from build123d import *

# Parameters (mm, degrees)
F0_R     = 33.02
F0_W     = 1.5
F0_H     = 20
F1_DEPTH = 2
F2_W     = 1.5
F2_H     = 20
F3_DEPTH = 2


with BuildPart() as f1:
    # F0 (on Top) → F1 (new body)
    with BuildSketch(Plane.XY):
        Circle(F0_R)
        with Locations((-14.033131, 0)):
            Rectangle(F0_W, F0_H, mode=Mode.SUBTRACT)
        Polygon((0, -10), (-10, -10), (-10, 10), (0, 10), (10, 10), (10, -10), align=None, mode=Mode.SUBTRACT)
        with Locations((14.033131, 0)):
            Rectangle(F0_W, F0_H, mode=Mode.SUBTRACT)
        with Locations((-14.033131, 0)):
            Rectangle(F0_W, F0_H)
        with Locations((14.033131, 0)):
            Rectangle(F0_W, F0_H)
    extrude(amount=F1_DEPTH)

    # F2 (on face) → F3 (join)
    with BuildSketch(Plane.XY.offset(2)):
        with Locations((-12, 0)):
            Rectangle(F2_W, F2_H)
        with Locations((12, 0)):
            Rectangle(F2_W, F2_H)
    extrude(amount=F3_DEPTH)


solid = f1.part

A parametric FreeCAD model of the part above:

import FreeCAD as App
import Part
import Sketcher

V = App.Vector

doc = App.newDocument("Part")
body = doc.addObject("PartDesign::Body", "Body")

# Sketch on XY plane
sketch1 = doc.addObject("Sketcher::SketchObject", "Sketch")
body.addObject(sketch1)
sketch1.AttachmentSupport = (doc.XY_Plane, [""])
sketch1.MapMode = "FlatFace"
sketch1.addGeometry(Part.Circle(V(0, 0, 0), V(0, 0, 1), 33.02), False)
sketch1.addGeometry(Part.LineSegment(V(10, -10, 0), V(-10, -10, 0)), False)
sketch1.addGeometry(Part.LineSegment(V(-10, -10, 0), V(-10, 10, 0)), False)
sketch1.addGeometry(Part.LineSegment(V(-10, 10, 0), V(10, 10, 0)), False)
sketch1.addGeometry(Part.LineSegment(V(10, 10, 0), V(10, -10, 0)), False)
sketch1.addConstraint(Sketcher.Constraint("Coincident", 1, 2, 2, 1))
sketch1.addConstraint(Sketcher.Constraint("Coincident", 2, 2, 3, 1))
sketch1.addConstraint(Sketcher.Constraint("Coincident", 3, 2, 4, 1))
sketch1.addConstraint(Sketcher.Constraint("Coincident", 4, 2, 1, 1))
sketch1.addConstraint(Sketcher.Constraint("Horizontal", 1))
sketch1.addConstraint(Sketcher.Constraint("Vertical", 2))
sketch1.addConstraint(Sketcher.Constraint("Horizontal", 3))
sketch1.addConstraint(Sketcher.Constraint("Vertical", 4))
sketch1.addConstraint(Sketcher.Constraint("Coincident", 0, 3, -1, 1))
sketch1.addConstraint(Sketcher.Constraint("Symmetric", 1, 2, 3, 2, -1, 1))
sketch1.addConstraint(Sketcher.Constraint("Equal", 3, 2))
sketch1.addConstraint(Sketcher.Constraint("Diameter", 0, 66.04))
sketch1.addConstraint(Sketcher.Constraint("DistanceX", 1, 2, 1, 1, 20.0))
pad1 = doc.addObject("PartDesign::Pad", "Pad")
body.addObject(pad1)
pad1.Profile = sketch1
pad1.Length = 2

# Sketch on XY plane
sketch2 = doc.addObject("Sketcher::SketchObject", "Sketch001")
body.addObject(sketch2)
sketch2.AttachmentSupport = (doc.XY_Plane, [""])
sketch2.MapMode = "FlatFace"
sketch2.AttachmentOffset = App.Placement(V(0, 0, 2), App.Rotation())
sketch2.addGeometry(Part.LineSegment(V(-12.75, 10, 0), V(-12.75, -10, 0)), False)
sketch2.addGeometry(Part.LineSegment(V(-12.75, -10, 0), V(-11.25, -10, 0)), False)
sketch2.addGeometry(Part.LineSegment(V(-11.25, -10, 0), V(-11.25, 10, 0)), False)
sketch2.addGeometry(Part.LineSegment(V(-11.25, 10, 0), V(-12.75, 10, 0)), False)
sketch2.addGeometry(Part.LineSegment(V(11.25, 10, 0), V(11.25, -10, 0)), False)
sketch2.addGeometry(Part.LineSegment(V(11.25, -10, 0), V(12.75, -10, 0)), False)
sketch2.addGeometry(Part.LineSegment(V(12.75, -10, 0), V(12.75, 10, 0)), False)
sketch2.addGeometry(Part.LineSegment(V(12.75, 10, 0), V(11.25, 10, 0)), False)
sketch2.addConstraint(Sketcher.Constraint("Coincident", 0, 2, 1, 1))
sketch2.addConstraint(Sketcher.Constraint("Coincident", 1, 2, 2, 1))
sketch2.addConstraint(Sketcher.Constraint("Coincident", 2, 2, 3, 1))
sketch2.addConstraint(Sketcher.Constraint("Coincident", 3, 2, 0, 1))
sketch2.addConstraint(Sketcher.Constraint("Coincident", 4, 2, 5, 1))
sketch2.addConstraint(Sketcher.Constraint("Coincident", 5, 2, 6, 1))
sketch2.addConstraint(Sketcher.Constraint("Coincident", 6, 2, 7, 1))
sketch2.addConstraint(Sketcher.Constraint("Coincident", 7, 2, 4, 1))
sketch2.addConstraint(Sketcher.Constraint("Vertical", 0))
sketch2.addConstraint(Sketcher.Constraint("Horizontal", 1))
sketch2.addConstraint(Sketcher.Constraint("Vertical", 2))
sketch2.addConstraint(Sketcher.Constraint("Horizontal", 3))
sketch2.addConstraint(Sketcher.Constraint("Vertical", 4))
sketch2.addConstraint(Sketcher.Constraint("Horizontal", 5))
sketch2.addConstraint(Sketcher.Constraint("Vertical", 6))
sketch2.addConstraint(Sketcher.Constraint("Horizontal", 7))
sketch2.addConstraint(Sketcher.Constraint("Symmetric", 2, 2, 4, 2, -1, 1))
sketch2.addConstraint(Sketcher.Constraint("Symmetric", 0, 2, 6, 2, -1, 1))
sketch2.addConstraint(Sketcher.Constraint("Horizontal", 1, 2, 4, 2))
sketch2.addConstraint(Sketcher.Constraint("DistanceY", 0, 2, 0, 1, 20.0))
sketch2.addConstraint(Sketcher.Constraint("DistanceX", 1, 1, 1, 2, 1.5))
sketch2.addConstraint(Sketcher.Constraint("DistanceX", 0, 2, 4, 2, 24.0))
pad2 = doc.addObject("PartDesign::Pad", "Pad001")
body.addObject(pad2)
pad2.Profile = sketch2
pad2.Length = 2

doc.recompute()
